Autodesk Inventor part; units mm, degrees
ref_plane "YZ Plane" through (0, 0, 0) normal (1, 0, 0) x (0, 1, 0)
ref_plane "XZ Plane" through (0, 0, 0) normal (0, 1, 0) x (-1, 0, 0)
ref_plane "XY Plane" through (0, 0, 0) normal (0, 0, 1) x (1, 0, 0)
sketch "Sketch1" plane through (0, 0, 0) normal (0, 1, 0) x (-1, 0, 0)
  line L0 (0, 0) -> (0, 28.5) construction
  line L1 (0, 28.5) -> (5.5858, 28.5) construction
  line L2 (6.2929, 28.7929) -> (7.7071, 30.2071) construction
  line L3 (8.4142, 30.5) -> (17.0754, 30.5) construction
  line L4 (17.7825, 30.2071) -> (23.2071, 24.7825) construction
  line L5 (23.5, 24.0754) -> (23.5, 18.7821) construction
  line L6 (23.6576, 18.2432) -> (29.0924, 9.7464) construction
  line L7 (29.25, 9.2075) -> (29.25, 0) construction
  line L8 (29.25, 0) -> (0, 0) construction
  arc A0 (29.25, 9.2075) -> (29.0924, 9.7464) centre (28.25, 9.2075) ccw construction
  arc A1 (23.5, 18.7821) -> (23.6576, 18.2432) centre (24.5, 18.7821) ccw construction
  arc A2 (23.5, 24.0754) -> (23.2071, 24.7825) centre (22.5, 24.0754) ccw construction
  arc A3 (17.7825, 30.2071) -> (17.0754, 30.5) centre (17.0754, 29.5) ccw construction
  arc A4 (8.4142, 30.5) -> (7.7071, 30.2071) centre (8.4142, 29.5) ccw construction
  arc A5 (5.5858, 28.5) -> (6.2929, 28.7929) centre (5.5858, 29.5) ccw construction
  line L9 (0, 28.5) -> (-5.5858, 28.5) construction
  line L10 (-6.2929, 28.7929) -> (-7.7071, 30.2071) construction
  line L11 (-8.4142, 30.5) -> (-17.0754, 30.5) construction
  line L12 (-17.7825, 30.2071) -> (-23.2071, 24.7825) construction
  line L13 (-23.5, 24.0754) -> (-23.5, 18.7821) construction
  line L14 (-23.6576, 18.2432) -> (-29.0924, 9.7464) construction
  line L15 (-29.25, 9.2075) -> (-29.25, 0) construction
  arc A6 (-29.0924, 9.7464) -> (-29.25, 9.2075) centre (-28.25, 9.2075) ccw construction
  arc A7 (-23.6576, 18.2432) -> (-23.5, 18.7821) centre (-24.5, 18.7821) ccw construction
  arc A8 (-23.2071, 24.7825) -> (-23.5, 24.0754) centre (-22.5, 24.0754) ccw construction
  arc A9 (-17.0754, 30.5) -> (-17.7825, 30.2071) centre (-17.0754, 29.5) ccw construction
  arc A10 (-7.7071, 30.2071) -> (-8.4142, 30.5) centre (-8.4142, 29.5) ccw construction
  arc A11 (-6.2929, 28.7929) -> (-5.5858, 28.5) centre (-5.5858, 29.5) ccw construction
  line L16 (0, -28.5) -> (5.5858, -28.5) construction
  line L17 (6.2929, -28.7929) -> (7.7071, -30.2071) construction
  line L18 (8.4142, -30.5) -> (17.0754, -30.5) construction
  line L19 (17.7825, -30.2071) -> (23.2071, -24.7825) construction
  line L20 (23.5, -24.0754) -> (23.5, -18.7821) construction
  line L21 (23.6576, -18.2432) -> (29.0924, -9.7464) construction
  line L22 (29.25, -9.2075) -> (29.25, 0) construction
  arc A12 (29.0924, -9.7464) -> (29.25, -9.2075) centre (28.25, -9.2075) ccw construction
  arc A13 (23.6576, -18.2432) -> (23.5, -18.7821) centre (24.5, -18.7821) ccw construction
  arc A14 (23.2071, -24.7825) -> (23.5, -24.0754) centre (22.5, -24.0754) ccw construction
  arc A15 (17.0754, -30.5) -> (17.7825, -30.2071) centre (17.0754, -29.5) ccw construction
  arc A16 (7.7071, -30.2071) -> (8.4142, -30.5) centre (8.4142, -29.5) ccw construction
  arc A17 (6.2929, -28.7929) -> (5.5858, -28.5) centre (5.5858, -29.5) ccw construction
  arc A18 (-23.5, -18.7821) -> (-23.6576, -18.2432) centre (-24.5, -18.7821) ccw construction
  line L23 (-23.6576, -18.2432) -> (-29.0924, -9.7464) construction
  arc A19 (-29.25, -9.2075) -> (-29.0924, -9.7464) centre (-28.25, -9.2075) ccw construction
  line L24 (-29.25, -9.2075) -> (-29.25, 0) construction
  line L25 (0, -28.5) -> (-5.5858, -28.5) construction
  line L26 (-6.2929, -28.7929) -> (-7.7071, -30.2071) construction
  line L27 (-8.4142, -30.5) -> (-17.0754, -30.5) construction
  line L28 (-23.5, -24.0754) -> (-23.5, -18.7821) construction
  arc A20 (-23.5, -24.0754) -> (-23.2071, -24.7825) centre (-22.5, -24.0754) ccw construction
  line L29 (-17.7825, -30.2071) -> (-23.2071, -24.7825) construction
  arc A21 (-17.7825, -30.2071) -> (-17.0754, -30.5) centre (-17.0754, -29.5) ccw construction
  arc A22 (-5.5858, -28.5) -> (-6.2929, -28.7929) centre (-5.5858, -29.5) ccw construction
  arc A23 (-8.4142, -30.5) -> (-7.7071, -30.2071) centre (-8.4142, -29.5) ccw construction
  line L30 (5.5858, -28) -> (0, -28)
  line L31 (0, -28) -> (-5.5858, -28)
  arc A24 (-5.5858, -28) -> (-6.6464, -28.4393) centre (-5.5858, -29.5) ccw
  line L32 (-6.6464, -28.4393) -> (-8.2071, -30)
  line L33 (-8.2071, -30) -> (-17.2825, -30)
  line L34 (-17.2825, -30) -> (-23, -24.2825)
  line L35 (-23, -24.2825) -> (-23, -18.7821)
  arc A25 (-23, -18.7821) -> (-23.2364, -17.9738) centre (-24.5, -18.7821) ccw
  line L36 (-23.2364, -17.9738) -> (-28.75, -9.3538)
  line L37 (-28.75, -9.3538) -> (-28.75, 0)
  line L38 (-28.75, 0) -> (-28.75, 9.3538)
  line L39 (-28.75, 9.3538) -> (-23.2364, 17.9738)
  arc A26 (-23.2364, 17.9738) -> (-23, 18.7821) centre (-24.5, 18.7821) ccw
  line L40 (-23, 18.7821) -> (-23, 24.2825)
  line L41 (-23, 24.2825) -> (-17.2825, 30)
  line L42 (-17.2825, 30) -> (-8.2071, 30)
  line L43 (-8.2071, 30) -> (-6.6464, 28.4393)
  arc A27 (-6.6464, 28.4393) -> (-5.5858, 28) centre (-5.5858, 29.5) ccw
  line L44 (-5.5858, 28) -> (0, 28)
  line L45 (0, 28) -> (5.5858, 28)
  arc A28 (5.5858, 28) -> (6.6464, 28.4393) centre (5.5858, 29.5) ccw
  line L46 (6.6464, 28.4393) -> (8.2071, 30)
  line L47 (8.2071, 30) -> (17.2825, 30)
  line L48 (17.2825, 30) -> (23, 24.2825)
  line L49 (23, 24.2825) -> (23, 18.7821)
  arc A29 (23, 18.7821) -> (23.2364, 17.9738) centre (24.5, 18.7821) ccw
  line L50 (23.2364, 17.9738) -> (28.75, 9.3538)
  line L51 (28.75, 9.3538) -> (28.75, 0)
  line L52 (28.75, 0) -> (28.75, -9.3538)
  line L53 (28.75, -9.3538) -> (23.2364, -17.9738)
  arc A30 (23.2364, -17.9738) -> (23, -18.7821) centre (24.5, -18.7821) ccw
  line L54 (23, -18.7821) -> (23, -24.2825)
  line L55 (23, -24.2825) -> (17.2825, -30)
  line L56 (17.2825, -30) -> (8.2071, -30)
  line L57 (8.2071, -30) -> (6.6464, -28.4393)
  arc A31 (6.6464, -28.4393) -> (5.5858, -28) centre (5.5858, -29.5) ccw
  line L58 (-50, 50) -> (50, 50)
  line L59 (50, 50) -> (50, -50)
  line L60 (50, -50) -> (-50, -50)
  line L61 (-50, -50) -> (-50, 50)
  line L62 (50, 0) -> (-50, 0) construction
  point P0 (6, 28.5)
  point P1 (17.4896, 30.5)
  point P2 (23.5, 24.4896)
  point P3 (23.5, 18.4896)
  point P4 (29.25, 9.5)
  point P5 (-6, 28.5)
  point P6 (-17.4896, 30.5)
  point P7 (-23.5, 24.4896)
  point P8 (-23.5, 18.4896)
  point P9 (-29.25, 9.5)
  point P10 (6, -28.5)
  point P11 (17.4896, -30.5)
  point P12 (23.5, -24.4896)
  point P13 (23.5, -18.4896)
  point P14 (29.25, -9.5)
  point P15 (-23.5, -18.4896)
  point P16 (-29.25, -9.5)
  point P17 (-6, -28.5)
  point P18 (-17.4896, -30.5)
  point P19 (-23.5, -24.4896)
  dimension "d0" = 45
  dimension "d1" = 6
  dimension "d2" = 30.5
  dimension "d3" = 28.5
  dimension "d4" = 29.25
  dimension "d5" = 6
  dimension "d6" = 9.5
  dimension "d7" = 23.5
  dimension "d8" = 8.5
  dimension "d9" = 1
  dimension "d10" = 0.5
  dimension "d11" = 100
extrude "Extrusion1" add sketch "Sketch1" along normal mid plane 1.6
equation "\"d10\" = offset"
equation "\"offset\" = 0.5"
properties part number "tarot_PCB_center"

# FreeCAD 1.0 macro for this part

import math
import FreeCAD as App
import Part
import Sketcher
from FreeCAD import Vector
Q = App.Units.Quantity

doc = App.newDocument("Part")
body = doc.addObject("PartDesign::Body", "Body")

# Sketch on XZ plane
sketch1 = body.newObject("Sketcher::SketchObject", "Sketch")
sketch1.AttachmentSupport = (doc.getObject("XZ_Plane"), [""])
sketch1.MapMode = "FlatFace"
sketch1.addGeometry([
    Part.LineSegment(Vector(-50, 50, 0), Vector(50, 50, 0)),  # 0
    Part.LineSegment(Vector(50, 50, 0), Vector(50, -50, 0)),  # 1
    Part.LineSegment(Vector(50, -50, 0), Vector(-50, -50, 0)),  # 2
    Part.LineSegment(Vector(-50, -50, 0), Vector(-50, 50, 0)),  # 3
    Part.ArcOfCircle(Part.Circle(Vector(-5.6, -29.5, 0), Vector(0, 0, 1), 1.5), math.radians(90), math.radians(135)),  # 4
    Part.LineSegment(Vector(-5.6, -28, 0), Vector(5.6, -28, 0)),  # 5
    Part.ArcOfCircle(Part.Circle(Vector(5.6, -29.5, 0), Vector(0, 0, 1), 1.5), math.radians(45), math.radians(90)),  # 6
    Part.LineSegment(Vector(6.6, -28.4, 0), Vector(8.2, -30, 0)),  # 7
    Part.LineSegment(Vector(8.2, -30, 0), Vector(17.3, -30, 0)),  # 8
    Part.LineSegment(Vector(17.3, -30, 0), Vector(23, -24.3, 0)),  # 9
    Part.LineSegment(Vector(23, -24.3, 0), Vector(23, -18.8, 0)),  # 10
    Part.ArcOfCircle(Part.Circle(Vector(24.5, -18.8, 0), Vector(0, 0, 1), 1.5), math.radians(147), math.radians(180)),  # 11
    Part.LineSegment(Vector(23.2, -18, 0), Vector(28.8, -9.4, 0)),  # 12
    Part.LineSegment(Vector(28.8, -9.4, 0), Vector(28.8, 9.4, 0)),  # 13
    Part.LineSegment(Vector(28.8, 9.4, 0), Vector(23.2, 18, 0)),  # 14
    Part.ArcOfCircle(Part.Circle(Vector(24.5, 18.8, 0), Vector(0, 0, 1), 1.5), math.radians(180), math.radians(213)),  # 15
    Part.LineSegment(Vector(23, 18.8, 0), Vector(23, 24.3, 0)),  # 16
    Part.LineSegment(Vector(23, 24.3, 0), Vector(17.3, 30, 0)),  # 17
    Part.LineSegment(Vector(17.3, 30, 0), Vector(8.2, 30, 0)),  # 18
    Part.LineSegment(Vector(8.2, 30, 0), Vector(6.6, 28.4, 0)),  # 19
    Part.ArcOfCircle(Part.Circle(Vector(5.6, 29.5, 0), Vector(0, 0, 1), 1.5), math.radians(-90), math.radians(-45)),  # 20
    Part.LineSegment(Vector(5.6, 28, 0), Vector(-5.6, 28, 0)),  # 21
    Part.ArcOfCircle(Part.Circle(Vector(-5.6, 29.5, 0), Vector(0, 0, 1), 1.5), math.radians(-135), math.radians(-90)),  # 22
    Part.LineSegment(Vector(-6.6, 28.4, 0), Vector(-8.2, 30, 0)),  # 23
    Part.LineSegment(Vector(-8.2, 30, 0), Vector(-17.3, 30, 0)),  # 24
    Part.LineSegment(Vector(-17.3, 30, 0), Vector(-23, 24.3, 0)),  # 25
    Part.LineSegment(Vector(-23, 24.3, 0), Vector(-23, 18.8, 0)),  # 26
    Part.ArcOfCircle(Part.Circle(Vector(-24.5, 18.8, 0), Vector(0, 0, 1), 1.5), math.radians(-33), math.radians(0)),  # 27
    Part.LineSegment(Vector(-23.2, 18, 0), Vector(-28.8, 9.4, 0)),  # 28
    Part.LineSegment(Vector(-28.8, 9.4, 0), Vector(-28.8, -9.4, 0)),  # 29
    Part.LineSegment(Vector(-28.8, -9.4, 0), Vector(-23.2, -18, 0)),  # 30
    Part.ArcOfCircle(Part.Circle(Vector(-24.5, -18.8, 0), Vector(0, 0, 1), 1.5), math.radians(0), math.radians(33)),  # 31
    Part.LineSegment(Vector(-23, -18.8, 0), Vector(-23, -24.3, 0)),  # 32
    Part.LineSegment(Vector(-23, -24.3, 0), Vector(-17.3, -30, 0)),  # 33
    Part.LineSegment(Vector(-17.3, -30, 0), Vector(-8.2, -30, 0)),  # 34
    Part.LineSegment(Vector(-8.2, -30, 0), Vector(-6.6, -28.4, 0)),  # 35
], False)
sketch1.addConstraint([
    Sketcher.Constraint("Coincident", 0, 2, 1, 1),
    Sketcher.Constraint("Coincident", 1, 2, 2, 1),
    Sketcher.Constraint("Coincident", 2, 2, 3, 1),
    Sketcher.Constraint("Coincident", 3, 2, 0, 1),
    Sketcher.Constraint("Tangent", 4, 1, 5, 1),
    Sketcher.Constraint("Tangent", 5, 2, 6, 2),
    Sketcher.Constraint("Tangent", 6, 1, 7, 1),
    Sketcher.Constraint("Coincident", 7, 2, 8, 1),
    Sketcher.Constraint("Coincident", 8, 2, 9, 1),
    Sketcher.Constraint("Coincident", 9, 2, 10, 1),
    Sketcher.Constraint("Tangent", 10, 2, 11, 2),
    Sketcher.Constraint("Tangent", 11, 1, 12, 1),
    Sketcher.Constraint("Coincident", 12, 2, 13, 1),
    Sketcher.Constraint("Coincident", 13, 2, 14, 1),
    Sketcher.Constraint("Tangent", 14, 2, 15, 2),
    Sketcher.Constraint("Tangent", 15, 1, 16, 1),
    Sketcher.Constraint("Coincident", 16, 2, 17, 1),
    Sketcher.Constraint("Coincident", 17, 2, 18, 1),
    Sketcher.Constraint("Coincident", 18, 2, 19, 1),
    Sketcher.Constraint("Tangent", 19, 2, 20, 2),
    Sketcher.Constraint("Tangent", 20, 1, 21, 1),
    Sketcher.Constraint("Tangent", 21, 2, 22, 2),
    Sketcher.Constraint("Tangent", 22, 1, 23, 1),
    Sketcher.Constraint("Coincident", 23, 2, 24, 1),
    Sketcher.Constraint("Coincident", 24, 2, 25, 1),
    Sketcher.Constraint("Coincident", 25, 2, 26, 1),
    Sketcher.Constraint("Tangent", 26, 2, 27, 2),
    Sketcher.Constraint("Tangent", 27, 1, 28, 1),
    Sketcher.Constraint("Coincident", 28, 2, 29, 1),
    Sketcher.Constraint("Coincident", 29, 2, 30, 1),
    Sketcher.Constraint("Tangent", 30, 2, 31, 2),
    Sketcher.Constraint("Tangent", 31, 1, 32, 1),
    Sketcher.Constraint("Coincident", 32, 2, 33, 1),
    Sketcher.Constraint("Coincident", 33, 2, 34, 1),
    Sketcher.Constraint("Coincident", 34, 2, 35, 1),
    Sketcher.Constraint("Tangent", 35, 2, 4, 2),
    Sketcher.Constraint("Horizontal", 0),
    Sketcher.Constraint("Vertical", 1),
    Sketcher.Constraint("Horizontal", 2),
    Sketcher.Constraint("Vertical", 3),
    Sketcher.Constraint("Horizontal", 5),
    Sketcher.Constraint("Horizontal", 8),
    Sketcher.Constraint("Vertical", 10),
    Sketcher.Constraint("Vertical", 13),
    Sketcher.Constraint("Vertical", 16),
    Sketcher.Constraint("Horizontal", 18),
    Sketcher.Constraint("Horizontal", 21),
    Sketcher.Constraint("Horizontal", 24),
    Sketcher.Constraint("Vertical", 26),
    Sketcher.Constraint("Vertical", 29),
    Sketcher.Constraint("Vertical", 32),
    Sketcher.Constraint("Horizontal", 34),
    Sketcher.Constraint("Equal", 4, 6),
    Sketcher.Constraint("Equal", 6, 11),
    Sketcher.Constraint("Equal", 11, 15),
    Sketcher.Constraint("Equal", 15, 20),
    Sketcher.Constraint("Equal", 20, 22),
    Sketcher.Constraint("Equal", 22, 27),
    Sketcher.Constraint("Equal", 27, 31),
    Sketcher.Constraint("Symmetric", 4, 3, 20, 3, -1, 1),
    Sketcher.Constraint("Symmetric", 11, 3, 27, 3, -1, 1),
    Sketcher.Constraint("Symmetric", 15, 3, 31, 3, -1, 1),
    Sketcher.Constraint("Symmetric", 0, 2, 2, 2, -1, 1),
    Sketcher.Constraint("Symmetric", 6, 1, 22, 1, -1, 1),
    Sketcher.Constraint("Symmetric", 8, 2, 24, 2, -1, 1),
    Sketcher.Constraint("Symmetric", 12, 2, 28, 2, -1, 1),
    Sketcher.Constraint("Symmetric", 17, 2, 33, 2, -1, 1),
    Sketcher.Constraint("Symmetric", 15, 3, 27, 3, -2),
    Sketcher.Constraint("Symmetric", 19, 2, 22, 1, -2),
    Sketcher.Constraint("Symmetric", 17, 2, 24, 2, -2),
    Sketcher.Constraint("Perpendicular", 7, 9),
    Sketcher.Constraint("Perpendicular", 9, 17),
    Sketcher.Constraint("Perpendicular", 17, 19),
    Sketcher.Constraint("Perpendicular", 23, 25),
    Sketcher.Constraint("Parallel", 14, 30),
    Sketcher.Constraint("Perpendicular", 25, 33),
    Sketcher.Constraint("Perpendicular", 33, 35),
    Sketcher.Constraint("Horizontal", 14, 2, 27, 1),
    Sketcher.Constraint("Equal", 2, 1),
    Sketcher.Constraint("DistanceX", 0, 1, 0, 2, Q("3.937 in")),
    Sketcher.Constraint("Radius", 4, 1.5),
    Sketcher.Constraint("DistanceY", 7, 2, 6, 3, 0.5),
    Sketcher.Constraint("DistanceX", 8, 1, 8, 2, Q("0.3573 in")),
    Sketcher.Constraint("DistanceY", 9, 2, -1, 1, Q("0.956 in")),
    Sketcher.Constraint("DistanceX", 5, 1, 5, 2, 11.1716),
    Sketcher.Constraint("DistanceY", 10, 1, 10, 2, 5.5004),
    Sketcher.Constraint("DistanceY", 13, 1, 13, 2, 18.7076),
    Sketcher.Constraint("DistanceY", 7, 2, -1, 1, Q("1.1811 in")),
    Sketcher.Constraint("DistanceX", -1, 1, 12, 2, Q("1.1319 in")),
])
pad1 = body.newObject("PartDesign::Pad", "Pad")
pad1.Profile = sketch1
pad1.Length = Q("0.0629921 in")
pad1.Midplane = True

doc.recompute()
